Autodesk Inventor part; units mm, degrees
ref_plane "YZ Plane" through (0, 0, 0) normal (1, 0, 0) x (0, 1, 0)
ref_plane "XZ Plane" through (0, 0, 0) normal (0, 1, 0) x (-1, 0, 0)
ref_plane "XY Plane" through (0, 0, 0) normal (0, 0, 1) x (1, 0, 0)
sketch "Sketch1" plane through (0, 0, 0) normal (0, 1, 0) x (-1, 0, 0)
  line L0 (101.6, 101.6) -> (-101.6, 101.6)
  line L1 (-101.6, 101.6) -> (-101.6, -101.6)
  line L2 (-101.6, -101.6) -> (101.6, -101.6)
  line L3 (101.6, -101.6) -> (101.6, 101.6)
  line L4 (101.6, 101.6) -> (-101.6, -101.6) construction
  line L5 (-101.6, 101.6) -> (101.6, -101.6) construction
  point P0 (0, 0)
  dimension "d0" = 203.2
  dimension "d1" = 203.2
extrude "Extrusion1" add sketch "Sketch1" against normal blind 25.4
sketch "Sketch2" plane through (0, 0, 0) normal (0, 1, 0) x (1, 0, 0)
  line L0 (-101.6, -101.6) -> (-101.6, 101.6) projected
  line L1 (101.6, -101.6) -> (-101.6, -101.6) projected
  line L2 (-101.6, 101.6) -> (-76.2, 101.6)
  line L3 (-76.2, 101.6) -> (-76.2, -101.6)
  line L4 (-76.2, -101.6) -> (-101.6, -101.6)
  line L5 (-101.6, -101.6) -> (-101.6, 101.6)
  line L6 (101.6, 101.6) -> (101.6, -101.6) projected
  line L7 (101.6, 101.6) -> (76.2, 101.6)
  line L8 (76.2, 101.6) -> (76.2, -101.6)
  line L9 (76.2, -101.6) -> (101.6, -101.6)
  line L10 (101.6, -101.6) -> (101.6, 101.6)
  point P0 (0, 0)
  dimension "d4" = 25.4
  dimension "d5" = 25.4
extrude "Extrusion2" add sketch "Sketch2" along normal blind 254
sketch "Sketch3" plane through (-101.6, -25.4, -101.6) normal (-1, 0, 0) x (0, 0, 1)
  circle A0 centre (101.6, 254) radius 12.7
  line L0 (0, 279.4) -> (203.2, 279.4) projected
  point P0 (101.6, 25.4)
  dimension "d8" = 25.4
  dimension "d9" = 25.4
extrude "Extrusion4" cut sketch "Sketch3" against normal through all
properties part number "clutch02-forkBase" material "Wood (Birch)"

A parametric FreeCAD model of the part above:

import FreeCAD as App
import Part
import Sketcher
from FreeCAD import Vector
Q = App.Units.Quantity

doc = App.newDocument("Part")
params = doc.addObject("Spreadsheet::Sheet", "Params")
for row, (alias, value) in enumerate([
    ("sketch1_width", "8 in"),
    ("pad1_length", "1 in"),
    ("sketch2_width", "1 in"),
    ("sketch2_height", "8 in"),
    ("pad2_length", "10 in"),
    ("sketch3_diameter", "1 in"),
], start=1):
    params.set(f"A{row}", alias)
    params.set(f"B{row}", "=" + value)
    params.setAlias(f"B{row}", alias)

body = doc.addObject("PartDesign::Body", "Body")

# Sketch on XZ plane
sketch1 = doc.addObject("Sketcher::SketchObject", "Sketch")
body.addObject(sketch1)
sketch1.AttachmentSupport = (doc.XZ_Plane, [""])
sketch1.MapMode = "FlatFace"
sketch1.addGeometry(Part.LineSegment(Vector(-101.6, -101.6, 0), Vector(-101.6, 101.6, 0)), False)
sketch1.addGeometry(Part.LineSegment(Vector(-101.6, 101.6, 0), Vector(101.6, 101.6, 0)), False)
sketch1.addGeometry(Part.LineSegment(Vector(101.6, 101.6, 0), Vector(101.6, -101.6, 0)), False)
sketch1.addGeometry(Part.LineSegment(Vector(101.6, -101.6, 0), Vector(-101.6, -101.6, 0)), False)
sketch1.addConstraint(Sketcher.Constraint("Coincident", 0, 2, 1, 1))
sketch1.addConstraint(Sketcher.Constraint("Coincident", 1, 2, 2, 1))
sketch1.addConstraint(Sketcher.Constraint("Coincident", 2, 2, 3, 1))
sketch1.addConstraint(Sketcher.Constraint("Coincident", 3, 2, 0, 1))
sketch1.addConstraint(Sketcher.Constraint("Vertical", 0))
sketch1.addConstraint(Sketcher.Constraint("Horizontal", 1))
sketch1.addConstraint(Sketcher.Constraint("Vertical", 2))
sketch1.addConstraint(Sketcher.Constraint("Horizontal", 3))
sketch1.addConstraint(Sketcher.Constraint("Symmetric", 0, 2, 2, 2, -1, 1))
sketch1.addConstraint(Sketcher.Constraint("Equal", 3, 0))
sketch1.addConstraint(Sketcher.Constraint("DistanceX", 1, 1, 1, 2, Q("8 in")))
sketch1.setExpression("Constraints[10]", "Params.sketch1_width")
pad1 = doc.addObject("PartDesign::Pad", "Pad")
body.addObject(pad1)
pad1.Profile = sketch1
pad1.setExpression("Length", "Params.pad1_length")

# Sketch on XZ plane
sketch2 = doc.addObject("Sketcher::SketchObject", "Sketch001")
body.addObject(sketch2)
sketch2.AttachmentSupport = (doc.XZ_Plane, [""])
sketch2.MapMode = "FlatFace"
sketch2.addGeometry(Part.LineSegment(Vector(76.2, -101.6, 0), Vector(76.2, 101.6, 0)), False)
sketch2.addGeometry(Part.LineSegment(Vector(76.2, 101.6, 0), Vector(101.6, 101.6, 0)), False)
sketch2.addGeometry(Part.LineSegment(Vector(101.6, 101.6, 0), Vector(101.6, -101.6, 0)), False)
sketch2.addGeometry(Part.LineSegment(Vector(101.6, -101.6, 0), Vector(76.2, -101.6, 0)), False)
sketch2.addGeometry(Part.LineSegment(Vector(-101.6, -101.6, 0), Vector(-101.6, 101.6, 0)), False)
sketch2.addGeometry(Part.LineSegment(Vector(-101.6, 101.6, 0), Vector(-76.2, 101.6, 0)), False)
sketch2.addGeometry(Part.LineSegment(Vector(-76.2, 101.6, 0), Vector(-76.2, -101.6, 0)), False)
sketch2.addGeometry(Part.LineSegment(Vector(-76.2, -101.6, 0), Vector(-101.6, -101.6, 0)), False)
sketch2.addConstraint(Sketcher.Constraint("Coincident", 0, 2, 1, 1))
sketch2.addConstraint(Sketcher.Constraint("Coincident", 1, 2, 2, 1))
sketch2.addConstraint(Sketcher.Constraint("Coincident", 2, 2, 3, 1))
sketch2.addConstraint(Sketcher.Constraint("Coincident", 3, 2, 0, 1))
sketch2.addConstraint(Sketcher.Constraint("Coincident", 4, 2, 5, 1))
sketch2.addConstraint(Sketcher.Constraint("Coincident", 5, 2, 6, 1))
sketch2.addConstraint(Sketcher.Constraint("Coincident", 6, 2, 7, 1))
sketch2.addConstraint(Sketcher.Constraint("Coincident", 7, 2, 4, 1))
sketch2.addConstraint(Sketcher.Constraint("Vertical", 0))
sketch2.addConstraint(Sketcher.Constraint("Horizontal", 1))
sketch2.addConstraint(Sketcher.Constraint("Vertical", 2))
sketch2.addConstraint(Sketcher.Constraint("Horizontal", 3))
sketch2.addConstraint(Sketcher.Constraint("Vertical", 4))
sketch2.addConstraint(Sketcher.Constraint("Horizontal", 5))
sketch2.addConstraint(Sketcher.Constraint("Vertical", 6))
sketch2.addConstraint(Sketcher.Constraint("Horizontal", 7))
sketch2.addConstraint(Sketcher.Constraint("Symmetric", 2, 2, 4, 2, -1, 1))
sketch2.addConstraint(Sketcher.Constraint("Symmetric", 0, 2, 6, 2, -1, 1))
sketch2.addConstraint(Sketcher.Constraint("Horizontal", 1, 2, 4, 2))
sketch2.addConstraint(Sketcher.Constraint("DistanceX", 1, 1, 1, 2, Q("1 in")))
sketch2.addConstraint(Sketcher.Constraint("DistanceY", 0, 1, 0, 2, Q("8 in")))
sketch2.addConstraint(Sketcher.Constraint("DistanceX", -1, 1, 0, 2, Q("3 in")))
sketch2.setExpression("Constraints[19]", "Params.sketch2_width")
sketch2.setExpression("Constraints[20]", "Params.sketch2_height")
pad2 = doc.addObject("PartDesign::Pad", "Pad001")
body.addObject(pad2)
pad2.Profile = sketch2
pad2.setExpression("Length", "Params.pad2_length")
pad2.Reversed = True

# Sketch on YZ plane
sketch3 = doc.addObject("Sketcher::SketchObject", "Sketch002")
body.addObject(sketch3)
sketch3.AttachmentSupport = (doc.YZ_Plane, [""])
sketch3.MapMode = "FlatFace"
sketch3.AttachmentOffset = App.Placement(Vector(0, 0, -4 * 25.4), App.Rotation())
sketch3.addGeometry(Part.Circle(Vector(228.6, 0, 0), Vector(0, 0, 1), 12.7), False)
sketch3.addConstraint(Sketcher.Constraint("PointOnObject", 0, 3, -1))
sketch3.addConstraint(Sketcher.Constraint("Diameter", 0, Q("1 in")))
sketch3.addConstraint(Sketcher.Constraint("DistanceX", -1, 1, 0, 3, Q("9 in")))
sketch3.setExpression("Constraints[1]", "Params.sketch3_diameter")
pocket1 = doc.addObject("PartDesign::Pocket", "Pocket")
body.addObject(pocket1)
pocket1.Profile = sketch3
pocket1.Type = "ThroughAll"
pocket1.Reversed = True

doc.recompute()
